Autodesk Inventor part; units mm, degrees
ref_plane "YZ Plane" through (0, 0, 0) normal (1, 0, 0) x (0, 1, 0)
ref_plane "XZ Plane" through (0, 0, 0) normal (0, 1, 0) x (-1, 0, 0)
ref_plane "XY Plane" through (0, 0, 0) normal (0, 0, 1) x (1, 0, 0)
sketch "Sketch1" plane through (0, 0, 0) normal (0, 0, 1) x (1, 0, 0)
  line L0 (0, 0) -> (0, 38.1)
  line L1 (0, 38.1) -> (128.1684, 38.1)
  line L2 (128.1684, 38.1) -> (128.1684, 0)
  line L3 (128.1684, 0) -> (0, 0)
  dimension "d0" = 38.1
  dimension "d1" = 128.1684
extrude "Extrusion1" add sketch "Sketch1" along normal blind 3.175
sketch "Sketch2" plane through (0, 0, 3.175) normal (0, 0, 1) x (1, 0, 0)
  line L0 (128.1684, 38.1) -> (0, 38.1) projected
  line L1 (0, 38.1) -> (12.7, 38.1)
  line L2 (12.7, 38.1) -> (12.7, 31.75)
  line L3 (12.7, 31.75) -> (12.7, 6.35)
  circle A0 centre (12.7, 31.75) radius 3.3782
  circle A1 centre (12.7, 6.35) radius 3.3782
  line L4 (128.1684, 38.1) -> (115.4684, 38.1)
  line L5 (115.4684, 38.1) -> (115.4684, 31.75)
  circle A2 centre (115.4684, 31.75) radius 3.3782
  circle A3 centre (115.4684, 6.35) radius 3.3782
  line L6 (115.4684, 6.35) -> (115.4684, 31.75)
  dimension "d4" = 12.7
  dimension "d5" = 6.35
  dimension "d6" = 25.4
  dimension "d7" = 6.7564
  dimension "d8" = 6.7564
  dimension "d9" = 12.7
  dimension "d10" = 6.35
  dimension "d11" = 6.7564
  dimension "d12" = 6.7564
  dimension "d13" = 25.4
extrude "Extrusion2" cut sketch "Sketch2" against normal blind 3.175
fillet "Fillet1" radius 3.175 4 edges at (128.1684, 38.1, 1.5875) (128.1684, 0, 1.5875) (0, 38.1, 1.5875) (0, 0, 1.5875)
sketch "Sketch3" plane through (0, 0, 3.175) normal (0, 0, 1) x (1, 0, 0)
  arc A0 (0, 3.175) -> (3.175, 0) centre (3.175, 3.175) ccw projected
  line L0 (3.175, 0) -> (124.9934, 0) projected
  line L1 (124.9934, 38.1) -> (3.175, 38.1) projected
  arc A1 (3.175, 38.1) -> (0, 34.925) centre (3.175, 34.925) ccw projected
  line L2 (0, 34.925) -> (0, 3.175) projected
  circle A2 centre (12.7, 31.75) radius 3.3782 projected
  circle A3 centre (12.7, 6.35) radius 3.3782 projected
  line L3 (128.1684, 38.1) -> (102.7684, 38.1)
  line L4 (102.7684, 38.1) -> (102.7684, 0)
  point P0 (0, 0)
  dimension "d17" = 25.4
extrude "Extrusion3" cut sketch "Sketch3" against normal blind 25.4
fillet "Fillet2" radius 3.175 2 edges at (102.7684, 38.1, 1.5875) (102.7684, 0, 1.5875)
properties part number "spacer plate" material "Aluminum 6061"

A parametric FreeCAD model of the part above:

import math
import FreeCAD as App
import Part
import Sketcher

V = App.Vector
Q = App.Units.Quantity


def edges_at(feature, points):
    """Names of the edges that pass closest to the given points."""
    edges = feature.Shape.Edges
    near = lambda p: min(range(len(edges)), key=lambda i: edges[i].distToShape(Part.Vertex(*p))[0])
    return sorted({f"Edge{near(p) + 1}" for p in points})

doc = App.newDocument("Part")
body = doc.addObject("PartDesign::Body", "Body")

sketch1 = doc.addObject("Sketcher::SketchObject", "Sketch")
body.addObject(sketch1)
sketch1.AttachmentSupport = (doc.XY_Plane, [""])
sketch1.MapMode = "FlatFace"
sketch1.addGeometry([
    Part.LineSegment(V(0, 38, 0), V(0, 0, 0)),
    Part.LineSegment(V(0, 0, 0), V(128, 0, 0)),
    Part.LineSegment(V(128, 0, 0), V(128, 38, 0)),
    Part.LineSegment(V(128, 38, 0), V(0, 38, 0)),
], False)
sketch1.addConstraint([
    Sketcher.Constraint("Coincident", 0, 2, 1, 1),
    Sketcher.Constraint("Coincident", 1, 2, 2, 1),
    Sketcher.Constraint("Coincident", 2, 2, 3, 1),
    Sketcher.Constraint("Coincident", 3, 2, 0, 1),
    Sketcher.Constraint("Vertical", 0),
    Sketcher.Constraint("Horizontal", 1),
    Sketcher.Constraint("Vertical", 2),
    Sketcher.Constraint("Horizontal", 3),
    Sketcher.Constraint("Coincident", 0, 2, -1, 1),
    Sketcher.Constraint("DistanceY", 0, 2, 0, 1, Q("1.5 in")),
    Sketcher.Constraint("DistanceX", 1, 1, 1, 2, Q("5.046 in")),
])
pad1 = doc.addObject("PartDesign::Pad", "Pad")
body.addObject(pad1)
pad1.Profile = sketch1
pad1.Length = Q("0.125 in")

sketch2 = doc.addObject("Sketcher::SketchObject", "Sketch001")
body.addObject(sketch2)
sketch2.AttachmentSupport = (doc.XY_Plane, [""])
sketch2.MapMode = "FlatFace"
sketch2.AttachmentOffset = App.Placement(V(0, 0, 0.125 * 25.4), App.Rotation())
sketch2.addGeometry([
    Part.Circle(V(12.7, 6.3, 0), V(0, 0, 1), 3.4),
    Part.Circle(V(12.7, 31.8, 0), V(0, 0, 1), 3.4),
    Part.Circle(V(115.5, 6.3, 0), V(0, 0, 1), 3.4),
    Part.Circle(V(115.5, 31.8, 0), V(0, 0, 1), 3.4),
], False)
sketch2.addConstraint([
    Sketcher.Constraint("Equal", 0, 1),
    Sketcher.Constraint("Equal", 1, 2),
    Sketcher.Constraint("Equal", 2, 3),
    Sketcher.Constraint("Horizontal", 0, 3, 2, 3),
    Sketcher.Constraint("Horizontal", 1, 3, 3, 3),
    Sketcher.Constraint("Vertical", 0, 3, 1, 3),
    Sketcher.Constraint("Vertical", 2, 3, 3, 3),
    Sketcher.Constraint("Diameter", 0, Q("0.266 in")),
    Sketcher.Constraint("DistanceY", 0, 3, 1, 3, Q("1 in")),
    Sketcher.Constraint("DistanceX", -1, 1, 0, 3, Q("0.5 in")),
    Sketcher.Constraint("DistanceY", -1, 1, 0, 3, Q("0.25 in")),
    Sketcher.Constraint("DistanceX", -1, 1, 2, 3, Q("4.546 in")),
])
pocket1 = doc.addObject("PartDesign::Pocket", "Pocket")
body.addObject(pocket1)
pocket1.Profile = sketch2
pocket1.Length = Q("0.125 in")
doc.recompute()

fillet = doc.addObject("PartDesign::Fillet", "Fillet")
body.addObject(fillet)
fillet.Base = (pocket1, edges_at(pocket1, [
    (128.168, 38.1, 1.587),
    (128.168, 0, 1.587),
    (0, 38.1, 1.587),
    (0, 0, 1.587),
]))
fillet.Radius = Q("0.125 in")

sketch3 = doc.addObject("Sketcher::SketchObject", "Sketch002")
body.addObject(sketch3)
sketch3.AttachmentSupport = (doc.XY_Plane, [""])
sketch3.MapMode = "FlatFace"
sketch3.AttachmentOffset = App.Placement(V(0, 0, 0.125 * 25.4), App.Rotation())
sketch3.addGeometry([
    Part.LineSegment(V(0, 34.9, 0), V(0, 3.2, 0)),
    Part.ArcOfCircle(Part.Circle(V(3.2, 3.2, 0), V(0, 0, 1), 3.2), math.radians(180), math.radians(270)),
    Part.LineSegment(V(3.2, 0, 0), V(102.8, 0, 0)),
    Part.LineSegment(V(102.8, 0, 0), V(102.8, 38.1, 0)),
    Part.LineSegment(V(102.8, 38.1, 0), V(3.2, 38.1, 0)),
    Part.ArcOfCircle(Part.Circle(V(3.2, 34.9, 0), V(0, 0, 1), 3.2), math.radians(90), math.radians(180)),
    Part.Circle(V(12.7, 6.3, 0), V(0, 0, 1), 3.4),
    Part.Circle(V(12.7, 31.8, 0), V(0, 0, 1), 3.4),
], False)
sketch3.addConstraint([
    Sketcher.Constraint("Tangent", 0, 2, 1, 1),
    Sketcher.Constraint("Tangent", 1, 2, 2, 1),
    Sketcher.Constraint("Coincident", 2, 2, 3, 1),
    Sketcher.Constraint("Coincident", 3, 2, 4, 1),
    Sketcher.Constraint("Tangent", 4, 2, 5, 1),
    Sketcher.Constraint("Tangent", 5, 2, 0, 1),
    Sketcher.Constraint("Vertical", 0),
    Sketcher.Constraint("Horizontal", 2),
    Sketcher.Constraint("Vertical", 3),
    Sketcher.Constraint("Horizontal", 4),
    Sketcher.Constraint("Equal", 1, 5),
    Sketcher.Constraint("Equal", 6, 7),
    Sketcher.Constraint("PointOnObject", 0, 2, -2),
    Sketcher.Constraint("PointOnObject", 1, 2, -1),
    Sketcher.Constraint("Vertical", 6, 3, 7, 3),
    Sketcher.Constraint("DistanceY", 6, 3, 7, 3, Q("1 in")),
    Sketcher.Constraint("Diameter", 6, Q("0.266 in")),
    Sketcher.Constraint("DistanceY", 3, 1, 3, 2, Q("1.5 in")),
    Sketcher.Constraint("Radius", 1, Q("0.125 in")),
    Sketcher.Constraint("DistanceX", -1, 1, 6, 3, Q("0.5 in")),
    Sketcher.Constraint("DistanceX", 2, 1, 2, 2, Q("3.921 in")),
    Sketcher.Constraint("DistanceY", -1, 1, 6, 3, Q("0.25 in")),
])
pocket2 = doc.addObject("PartDesign::Pocket", "Pocket001")
body.addObject(pocket2)
pocket2.Profile = sketch3
pocket2.Length = Q("1 in")
doc.recompute()

fillet2 = doc.addObject("PartDesign::Fillet", "Fillet001")
body.addObject(fillet2)
fillet2.Base = (pocket2, edges_at(pocket2, [(102.768, 38.1, 1.587), (102.768, 0, 1.587)]))
fillet2.Radius = Q("0.125 in")

doc.recompute()
